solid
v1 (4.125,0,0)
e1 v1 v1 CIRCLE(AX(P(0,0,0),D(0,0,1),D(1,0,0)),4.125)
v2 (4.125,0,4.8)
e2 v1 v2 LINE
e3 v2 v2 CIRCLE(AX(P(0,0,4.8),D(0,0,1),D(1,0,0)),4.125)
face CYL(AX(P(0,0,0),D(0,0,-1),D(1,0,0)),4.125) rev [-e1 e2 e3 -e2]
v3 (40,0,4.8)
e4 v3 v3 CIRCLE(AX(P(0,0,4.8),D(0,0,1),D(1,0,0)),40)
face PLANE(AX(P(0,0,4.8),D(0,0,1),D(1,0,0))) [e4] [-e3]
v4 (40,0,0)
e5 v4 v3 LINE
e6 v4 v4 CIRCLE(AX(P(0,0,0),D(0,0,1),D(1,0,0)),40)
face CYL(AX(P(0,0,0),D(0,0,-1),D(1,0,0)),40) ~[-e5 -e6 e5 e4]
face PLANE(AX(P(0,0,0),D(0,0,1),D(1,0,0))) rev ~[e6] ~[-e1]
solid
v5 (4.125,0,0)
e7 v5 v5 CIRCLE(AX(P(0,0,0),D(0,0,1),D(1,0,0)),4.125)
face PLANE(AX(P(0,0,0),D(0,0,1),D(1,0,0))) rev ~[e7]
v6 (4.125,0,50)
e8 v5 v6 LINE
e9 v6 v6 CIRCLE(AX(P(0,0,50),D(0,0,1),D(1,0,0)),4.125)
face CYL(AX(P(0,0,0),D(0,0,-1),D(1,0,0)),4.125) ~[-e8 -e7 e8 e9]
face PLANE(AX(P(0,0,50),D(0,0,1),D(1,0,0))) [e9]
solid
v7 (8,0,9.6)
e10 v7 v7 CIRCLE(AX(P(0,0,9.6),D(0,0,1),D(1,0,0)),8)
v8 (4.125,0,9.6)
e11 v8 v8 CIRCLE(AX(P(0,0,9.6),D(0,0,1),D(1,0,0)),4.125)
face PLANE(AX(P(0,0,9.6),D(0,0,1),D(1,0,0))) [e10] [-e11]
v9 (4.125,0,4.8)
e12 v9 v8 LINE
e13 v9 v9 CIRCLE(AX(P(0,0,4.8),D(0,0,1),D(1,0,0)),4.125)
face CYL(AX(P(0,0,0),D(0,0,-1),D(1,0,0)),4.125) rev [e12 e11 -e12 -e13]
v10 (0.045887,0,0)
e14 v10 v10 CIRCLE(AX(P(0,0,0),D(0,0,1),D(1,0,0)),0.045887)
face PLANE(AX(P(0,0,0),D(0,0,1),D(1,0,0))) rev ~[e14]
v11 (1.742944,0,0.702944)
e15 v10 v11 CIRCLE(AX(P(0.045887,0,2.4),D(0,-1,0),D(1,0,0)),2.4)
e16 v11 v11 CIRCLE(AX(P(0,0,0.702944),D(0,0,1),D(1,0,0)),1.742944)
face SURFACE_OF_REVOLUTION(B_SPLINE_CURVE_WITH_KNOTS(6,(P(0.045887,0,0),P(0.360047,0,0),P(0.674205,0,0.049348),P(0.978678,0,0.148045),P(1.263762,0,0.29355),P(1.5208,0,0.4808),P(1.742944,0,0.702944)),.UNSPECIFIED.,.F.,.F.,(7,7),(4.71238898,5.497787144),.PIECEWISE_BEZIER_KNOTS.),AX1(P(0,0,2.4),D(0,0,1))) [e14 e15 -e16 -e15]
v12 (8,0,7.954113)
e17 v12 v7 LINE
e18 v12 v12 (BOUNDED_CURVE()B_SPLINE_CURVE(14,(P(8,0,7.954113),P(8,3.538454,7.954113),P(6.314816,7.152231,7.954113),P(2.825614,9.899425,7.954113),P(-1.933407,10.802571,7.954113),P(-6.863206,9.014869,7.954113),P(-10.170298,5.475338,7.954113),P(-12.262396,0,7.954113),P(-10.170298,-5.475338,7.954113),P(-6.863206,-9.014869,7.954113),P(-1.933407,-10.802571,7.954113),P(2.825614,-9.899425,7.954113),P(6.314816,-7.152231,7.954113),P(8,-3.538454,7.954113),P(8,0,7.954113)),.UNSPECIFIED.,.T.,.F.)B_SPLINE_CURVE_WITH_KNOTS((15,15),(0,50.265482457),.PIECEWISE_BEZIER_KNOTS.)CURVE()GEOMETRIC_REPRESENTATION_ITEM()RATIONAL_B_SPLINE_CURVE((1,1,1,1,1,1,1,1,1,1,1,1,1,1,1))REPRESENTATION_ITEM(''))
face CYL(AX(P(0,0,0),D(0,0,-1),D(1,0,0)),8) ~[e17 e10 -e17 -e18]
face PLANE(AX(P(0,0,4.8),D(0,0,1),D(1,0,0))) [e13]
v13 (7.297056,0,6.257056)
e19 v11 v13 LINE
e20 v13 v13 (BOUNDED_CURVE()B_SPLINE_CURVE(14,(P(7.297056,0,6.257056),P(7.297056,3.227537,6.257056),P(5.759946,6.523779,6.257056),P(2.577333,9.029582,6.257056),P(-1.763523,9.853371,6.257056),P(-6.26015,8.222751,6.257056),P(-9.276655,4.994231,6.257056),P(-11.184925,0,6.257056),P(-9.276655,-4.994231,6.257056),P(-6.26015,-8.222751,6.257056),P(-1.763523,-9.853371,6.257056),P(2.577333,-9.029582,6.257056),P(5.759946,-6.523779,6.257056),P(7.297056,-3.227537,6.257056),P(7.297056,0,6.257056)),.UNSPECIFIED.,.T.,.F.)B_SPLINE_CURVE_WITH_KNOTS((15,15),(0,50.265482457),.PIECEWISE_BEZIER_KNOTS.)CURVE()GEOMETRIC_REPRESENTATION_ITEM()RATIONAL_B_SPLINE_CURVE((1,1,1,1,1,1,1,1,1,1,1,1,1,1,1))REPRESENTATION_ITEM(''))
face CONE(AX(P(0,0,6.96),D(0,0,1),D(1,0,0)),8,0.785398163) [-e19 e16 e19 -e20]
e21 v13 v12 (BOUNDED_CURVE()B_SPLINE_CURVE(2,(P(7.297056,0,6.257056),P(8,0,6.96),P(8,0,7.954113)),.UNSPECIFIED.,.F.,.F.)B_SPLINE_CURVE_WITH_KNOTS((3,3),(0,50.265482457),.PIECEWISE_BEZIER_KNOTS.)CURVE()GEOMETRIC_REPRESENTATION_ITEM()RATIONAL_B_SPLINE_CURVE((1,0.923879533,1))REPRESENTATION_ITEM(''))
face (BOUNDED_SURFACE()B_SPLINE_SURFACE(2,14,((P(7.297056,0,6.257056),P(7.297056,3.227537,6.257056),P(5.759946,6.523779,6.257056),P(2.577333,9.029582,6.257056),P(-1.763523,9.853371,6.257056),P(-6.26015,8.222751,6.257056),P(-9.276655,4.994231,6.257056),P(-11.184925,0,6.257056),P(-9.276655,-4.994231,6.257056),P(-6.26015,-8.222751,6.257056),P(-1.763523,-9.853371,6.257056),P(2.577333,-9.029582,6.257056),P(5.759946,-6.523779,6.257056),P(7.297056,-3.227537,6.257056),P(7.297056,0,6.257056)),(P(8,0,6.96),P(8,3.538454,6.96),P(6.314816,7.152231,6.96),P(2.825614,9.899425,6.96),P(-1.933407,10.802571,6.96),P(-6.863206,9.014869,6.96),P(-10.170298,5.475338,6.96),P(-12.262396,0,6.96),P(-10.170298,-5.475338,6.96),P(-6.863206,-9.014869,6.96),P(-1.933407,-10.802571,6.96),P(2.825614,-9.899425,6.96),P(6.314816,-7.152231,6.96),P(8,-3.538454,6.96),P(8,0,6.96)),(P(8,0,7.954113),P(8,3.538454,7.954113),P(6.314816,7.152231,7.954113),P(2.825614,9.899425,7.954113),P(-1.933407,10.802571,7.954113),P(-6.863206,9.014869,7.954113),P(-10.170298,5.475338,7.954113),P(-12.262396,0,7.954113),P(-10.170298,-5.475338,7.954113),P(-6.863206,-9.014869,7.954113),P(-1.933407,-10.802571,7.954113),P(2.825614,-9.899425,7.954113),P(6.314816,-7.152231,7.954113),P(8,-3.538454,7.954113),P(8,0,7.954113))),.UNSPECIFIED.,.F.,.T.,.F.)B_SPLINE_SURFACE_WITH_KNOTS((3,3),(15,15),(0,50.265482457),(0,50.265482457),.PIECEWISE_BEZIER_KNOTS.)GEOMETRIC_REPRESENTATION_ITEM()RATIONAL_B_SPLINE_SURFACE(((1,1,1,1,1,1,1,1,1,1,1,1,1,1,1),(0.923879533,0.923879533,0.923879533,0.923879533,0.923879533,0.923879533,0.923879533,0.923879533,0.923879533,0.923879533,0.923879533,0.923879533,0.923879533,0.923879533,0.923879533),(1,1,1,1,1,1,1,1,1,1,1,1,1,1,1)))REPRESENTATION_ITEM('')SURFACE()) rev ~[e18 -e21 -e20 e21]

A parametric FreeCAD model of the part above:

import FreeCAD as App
import Part
import Sketcher
from FreeCAD import Vector
Q = App.Units.Quantity


def edges_at(feature, points):
    """Names of the edges that pass closest to the given points."""
    edges = feature.Shape.Edges
    near = lambda p: min(range(len(edges)), key=lambda i: edges[i].distToShape(Part.Vertex(*p))[0])
    return sorted({f"Edge{near(p) + 1}" for p in points})

doc = App.newDocument("Part")
body = doc.addObject("PartDesign::Body", "Body")

sketch1 = body.newObject("Sketcher::SketchObject", "Sketch")
sketch1.AttachmentSupport = (doc.getObject("XY_Plane"), [""])
sketch1.MapMode = "FlatFace"
sketch1.addGeometry([
    Part.Circle(Vector(0, 0, 0), Vector(0, 0, 1), 8),
    Part.Circle(Vector(0, 0, 0), Vector(0, 0, 1), 4.1),
], False)
sketch1.addConstraint([
    Sketcher.Constraint("Coincident", 0, 3, -1, 1),
    Sketcher.Constraint("Coincident", 1, 3, -1, 1),
    Sketcher.Constraint("Diameter", 0, Q("16 mm")),
    Sketcher.Constraint("Diameter", 1, Q("8.25 mm")),
])
pad1 = body.newObject("PartDesign::Pad", "Pad")
pad1.Profile = sketch1
pad1.Length = 9.6

sketch2 = body.newObject("Sketcher::SketchObject", "Sketch001")
sketch2.AttachmentSupport = (doc.getObject("XY_Plane"), [""])
sketch2.MapMode = "FlatFace"
sketch2.addGeometry(Part.Circle(Vector(0, 0, 0), Vector(0, 0, 1), 4.1), False)
sketch2.addConstraint([
    Sketcher.Constraint("Coincident", 0, 3, -1, 1),
    Sketcher.Constraint("Diameter", 0, Q("8.25 mm")),
])
pad2 = body.newObject("PartDesign::Pad", "Pad001")
pad2.Profile = sketch2
pad2.Length = 4.8
doc.recompute()

chamfer = body.newObject("PartDesign::Chamfer", "Chamfer")
chamfer.Base = (pad2, edges_at(pad2, [(-8, 0, 0)]))
chamfer.Size = 6.96
doc.recompute()

fillet = body.newObject("PartDesign::Fillet", "Fillet")
fillet.Base = (chamfer, edges_at(chamfer, [(-8, 0, 6.96), (-1.04, 0, 0)]))
fillet.Radius = 2.4
body2 = doc.addObject("PartDesign::Body", "Body001")

sketch3 = body2.newObject("Sketcher::SketchObject", "Sketch002")
sketch3.AttachmentSupport = (doc.getObject("XY_Plane001"), [""])
sketch3.MapMode = "FlatFace"
sketch3.addGeometry([
    Part.Circle(Vector(0, 0, 0), Vector(0, 0, 1), 40),
    Part.Circle(Vector(0, 0, 0), Vector(0, 0, 1), 4.1),
], False)
sketch3.addConstraint([
    Sketcher.Constraint("Coincident", 0, 3, -1, 1),
    Sketcher.Constraint("Coincident", 1, 3, -1, 1),
    Sketcher.Constraint("Diameter", 0, Q("80 mm")),
    Sketcher.Constraint("Diameter", 1, Q("8.25 mm")),
])
pad3 = body2.newObject("PartDesign::Pad", "Pad002")
pad3.Profile = sketch3
pad3.Length = 4.8
body3 = doc.addObject("PartDesign::Body", "Body002")

sketch4 = body3.newObject("Sketcher::SketchObject", "Sketch003")
sketch4.AttachmentSupport = (doc.getObject("XY_Plane002"), [""])
sketch4.MapMode = "FlatFace"
sketch4.addGeometry(Part.Circle(Vector(0, 0, 0), Vector(0, 0, 1), 4.1), False)
sketch4.addConstraint([
    Sketcher.Constraint("Coincident", 0, 3, -1, 1),
    Sketcher.Constraint("Diameter", 0, Q("8.25 mm")),
])
pad4 = body3.newObject("PartDesign::Pad", "Pad003")
pad4.Profile = sketch4
pad4.Length = 50

doc.recompute()
